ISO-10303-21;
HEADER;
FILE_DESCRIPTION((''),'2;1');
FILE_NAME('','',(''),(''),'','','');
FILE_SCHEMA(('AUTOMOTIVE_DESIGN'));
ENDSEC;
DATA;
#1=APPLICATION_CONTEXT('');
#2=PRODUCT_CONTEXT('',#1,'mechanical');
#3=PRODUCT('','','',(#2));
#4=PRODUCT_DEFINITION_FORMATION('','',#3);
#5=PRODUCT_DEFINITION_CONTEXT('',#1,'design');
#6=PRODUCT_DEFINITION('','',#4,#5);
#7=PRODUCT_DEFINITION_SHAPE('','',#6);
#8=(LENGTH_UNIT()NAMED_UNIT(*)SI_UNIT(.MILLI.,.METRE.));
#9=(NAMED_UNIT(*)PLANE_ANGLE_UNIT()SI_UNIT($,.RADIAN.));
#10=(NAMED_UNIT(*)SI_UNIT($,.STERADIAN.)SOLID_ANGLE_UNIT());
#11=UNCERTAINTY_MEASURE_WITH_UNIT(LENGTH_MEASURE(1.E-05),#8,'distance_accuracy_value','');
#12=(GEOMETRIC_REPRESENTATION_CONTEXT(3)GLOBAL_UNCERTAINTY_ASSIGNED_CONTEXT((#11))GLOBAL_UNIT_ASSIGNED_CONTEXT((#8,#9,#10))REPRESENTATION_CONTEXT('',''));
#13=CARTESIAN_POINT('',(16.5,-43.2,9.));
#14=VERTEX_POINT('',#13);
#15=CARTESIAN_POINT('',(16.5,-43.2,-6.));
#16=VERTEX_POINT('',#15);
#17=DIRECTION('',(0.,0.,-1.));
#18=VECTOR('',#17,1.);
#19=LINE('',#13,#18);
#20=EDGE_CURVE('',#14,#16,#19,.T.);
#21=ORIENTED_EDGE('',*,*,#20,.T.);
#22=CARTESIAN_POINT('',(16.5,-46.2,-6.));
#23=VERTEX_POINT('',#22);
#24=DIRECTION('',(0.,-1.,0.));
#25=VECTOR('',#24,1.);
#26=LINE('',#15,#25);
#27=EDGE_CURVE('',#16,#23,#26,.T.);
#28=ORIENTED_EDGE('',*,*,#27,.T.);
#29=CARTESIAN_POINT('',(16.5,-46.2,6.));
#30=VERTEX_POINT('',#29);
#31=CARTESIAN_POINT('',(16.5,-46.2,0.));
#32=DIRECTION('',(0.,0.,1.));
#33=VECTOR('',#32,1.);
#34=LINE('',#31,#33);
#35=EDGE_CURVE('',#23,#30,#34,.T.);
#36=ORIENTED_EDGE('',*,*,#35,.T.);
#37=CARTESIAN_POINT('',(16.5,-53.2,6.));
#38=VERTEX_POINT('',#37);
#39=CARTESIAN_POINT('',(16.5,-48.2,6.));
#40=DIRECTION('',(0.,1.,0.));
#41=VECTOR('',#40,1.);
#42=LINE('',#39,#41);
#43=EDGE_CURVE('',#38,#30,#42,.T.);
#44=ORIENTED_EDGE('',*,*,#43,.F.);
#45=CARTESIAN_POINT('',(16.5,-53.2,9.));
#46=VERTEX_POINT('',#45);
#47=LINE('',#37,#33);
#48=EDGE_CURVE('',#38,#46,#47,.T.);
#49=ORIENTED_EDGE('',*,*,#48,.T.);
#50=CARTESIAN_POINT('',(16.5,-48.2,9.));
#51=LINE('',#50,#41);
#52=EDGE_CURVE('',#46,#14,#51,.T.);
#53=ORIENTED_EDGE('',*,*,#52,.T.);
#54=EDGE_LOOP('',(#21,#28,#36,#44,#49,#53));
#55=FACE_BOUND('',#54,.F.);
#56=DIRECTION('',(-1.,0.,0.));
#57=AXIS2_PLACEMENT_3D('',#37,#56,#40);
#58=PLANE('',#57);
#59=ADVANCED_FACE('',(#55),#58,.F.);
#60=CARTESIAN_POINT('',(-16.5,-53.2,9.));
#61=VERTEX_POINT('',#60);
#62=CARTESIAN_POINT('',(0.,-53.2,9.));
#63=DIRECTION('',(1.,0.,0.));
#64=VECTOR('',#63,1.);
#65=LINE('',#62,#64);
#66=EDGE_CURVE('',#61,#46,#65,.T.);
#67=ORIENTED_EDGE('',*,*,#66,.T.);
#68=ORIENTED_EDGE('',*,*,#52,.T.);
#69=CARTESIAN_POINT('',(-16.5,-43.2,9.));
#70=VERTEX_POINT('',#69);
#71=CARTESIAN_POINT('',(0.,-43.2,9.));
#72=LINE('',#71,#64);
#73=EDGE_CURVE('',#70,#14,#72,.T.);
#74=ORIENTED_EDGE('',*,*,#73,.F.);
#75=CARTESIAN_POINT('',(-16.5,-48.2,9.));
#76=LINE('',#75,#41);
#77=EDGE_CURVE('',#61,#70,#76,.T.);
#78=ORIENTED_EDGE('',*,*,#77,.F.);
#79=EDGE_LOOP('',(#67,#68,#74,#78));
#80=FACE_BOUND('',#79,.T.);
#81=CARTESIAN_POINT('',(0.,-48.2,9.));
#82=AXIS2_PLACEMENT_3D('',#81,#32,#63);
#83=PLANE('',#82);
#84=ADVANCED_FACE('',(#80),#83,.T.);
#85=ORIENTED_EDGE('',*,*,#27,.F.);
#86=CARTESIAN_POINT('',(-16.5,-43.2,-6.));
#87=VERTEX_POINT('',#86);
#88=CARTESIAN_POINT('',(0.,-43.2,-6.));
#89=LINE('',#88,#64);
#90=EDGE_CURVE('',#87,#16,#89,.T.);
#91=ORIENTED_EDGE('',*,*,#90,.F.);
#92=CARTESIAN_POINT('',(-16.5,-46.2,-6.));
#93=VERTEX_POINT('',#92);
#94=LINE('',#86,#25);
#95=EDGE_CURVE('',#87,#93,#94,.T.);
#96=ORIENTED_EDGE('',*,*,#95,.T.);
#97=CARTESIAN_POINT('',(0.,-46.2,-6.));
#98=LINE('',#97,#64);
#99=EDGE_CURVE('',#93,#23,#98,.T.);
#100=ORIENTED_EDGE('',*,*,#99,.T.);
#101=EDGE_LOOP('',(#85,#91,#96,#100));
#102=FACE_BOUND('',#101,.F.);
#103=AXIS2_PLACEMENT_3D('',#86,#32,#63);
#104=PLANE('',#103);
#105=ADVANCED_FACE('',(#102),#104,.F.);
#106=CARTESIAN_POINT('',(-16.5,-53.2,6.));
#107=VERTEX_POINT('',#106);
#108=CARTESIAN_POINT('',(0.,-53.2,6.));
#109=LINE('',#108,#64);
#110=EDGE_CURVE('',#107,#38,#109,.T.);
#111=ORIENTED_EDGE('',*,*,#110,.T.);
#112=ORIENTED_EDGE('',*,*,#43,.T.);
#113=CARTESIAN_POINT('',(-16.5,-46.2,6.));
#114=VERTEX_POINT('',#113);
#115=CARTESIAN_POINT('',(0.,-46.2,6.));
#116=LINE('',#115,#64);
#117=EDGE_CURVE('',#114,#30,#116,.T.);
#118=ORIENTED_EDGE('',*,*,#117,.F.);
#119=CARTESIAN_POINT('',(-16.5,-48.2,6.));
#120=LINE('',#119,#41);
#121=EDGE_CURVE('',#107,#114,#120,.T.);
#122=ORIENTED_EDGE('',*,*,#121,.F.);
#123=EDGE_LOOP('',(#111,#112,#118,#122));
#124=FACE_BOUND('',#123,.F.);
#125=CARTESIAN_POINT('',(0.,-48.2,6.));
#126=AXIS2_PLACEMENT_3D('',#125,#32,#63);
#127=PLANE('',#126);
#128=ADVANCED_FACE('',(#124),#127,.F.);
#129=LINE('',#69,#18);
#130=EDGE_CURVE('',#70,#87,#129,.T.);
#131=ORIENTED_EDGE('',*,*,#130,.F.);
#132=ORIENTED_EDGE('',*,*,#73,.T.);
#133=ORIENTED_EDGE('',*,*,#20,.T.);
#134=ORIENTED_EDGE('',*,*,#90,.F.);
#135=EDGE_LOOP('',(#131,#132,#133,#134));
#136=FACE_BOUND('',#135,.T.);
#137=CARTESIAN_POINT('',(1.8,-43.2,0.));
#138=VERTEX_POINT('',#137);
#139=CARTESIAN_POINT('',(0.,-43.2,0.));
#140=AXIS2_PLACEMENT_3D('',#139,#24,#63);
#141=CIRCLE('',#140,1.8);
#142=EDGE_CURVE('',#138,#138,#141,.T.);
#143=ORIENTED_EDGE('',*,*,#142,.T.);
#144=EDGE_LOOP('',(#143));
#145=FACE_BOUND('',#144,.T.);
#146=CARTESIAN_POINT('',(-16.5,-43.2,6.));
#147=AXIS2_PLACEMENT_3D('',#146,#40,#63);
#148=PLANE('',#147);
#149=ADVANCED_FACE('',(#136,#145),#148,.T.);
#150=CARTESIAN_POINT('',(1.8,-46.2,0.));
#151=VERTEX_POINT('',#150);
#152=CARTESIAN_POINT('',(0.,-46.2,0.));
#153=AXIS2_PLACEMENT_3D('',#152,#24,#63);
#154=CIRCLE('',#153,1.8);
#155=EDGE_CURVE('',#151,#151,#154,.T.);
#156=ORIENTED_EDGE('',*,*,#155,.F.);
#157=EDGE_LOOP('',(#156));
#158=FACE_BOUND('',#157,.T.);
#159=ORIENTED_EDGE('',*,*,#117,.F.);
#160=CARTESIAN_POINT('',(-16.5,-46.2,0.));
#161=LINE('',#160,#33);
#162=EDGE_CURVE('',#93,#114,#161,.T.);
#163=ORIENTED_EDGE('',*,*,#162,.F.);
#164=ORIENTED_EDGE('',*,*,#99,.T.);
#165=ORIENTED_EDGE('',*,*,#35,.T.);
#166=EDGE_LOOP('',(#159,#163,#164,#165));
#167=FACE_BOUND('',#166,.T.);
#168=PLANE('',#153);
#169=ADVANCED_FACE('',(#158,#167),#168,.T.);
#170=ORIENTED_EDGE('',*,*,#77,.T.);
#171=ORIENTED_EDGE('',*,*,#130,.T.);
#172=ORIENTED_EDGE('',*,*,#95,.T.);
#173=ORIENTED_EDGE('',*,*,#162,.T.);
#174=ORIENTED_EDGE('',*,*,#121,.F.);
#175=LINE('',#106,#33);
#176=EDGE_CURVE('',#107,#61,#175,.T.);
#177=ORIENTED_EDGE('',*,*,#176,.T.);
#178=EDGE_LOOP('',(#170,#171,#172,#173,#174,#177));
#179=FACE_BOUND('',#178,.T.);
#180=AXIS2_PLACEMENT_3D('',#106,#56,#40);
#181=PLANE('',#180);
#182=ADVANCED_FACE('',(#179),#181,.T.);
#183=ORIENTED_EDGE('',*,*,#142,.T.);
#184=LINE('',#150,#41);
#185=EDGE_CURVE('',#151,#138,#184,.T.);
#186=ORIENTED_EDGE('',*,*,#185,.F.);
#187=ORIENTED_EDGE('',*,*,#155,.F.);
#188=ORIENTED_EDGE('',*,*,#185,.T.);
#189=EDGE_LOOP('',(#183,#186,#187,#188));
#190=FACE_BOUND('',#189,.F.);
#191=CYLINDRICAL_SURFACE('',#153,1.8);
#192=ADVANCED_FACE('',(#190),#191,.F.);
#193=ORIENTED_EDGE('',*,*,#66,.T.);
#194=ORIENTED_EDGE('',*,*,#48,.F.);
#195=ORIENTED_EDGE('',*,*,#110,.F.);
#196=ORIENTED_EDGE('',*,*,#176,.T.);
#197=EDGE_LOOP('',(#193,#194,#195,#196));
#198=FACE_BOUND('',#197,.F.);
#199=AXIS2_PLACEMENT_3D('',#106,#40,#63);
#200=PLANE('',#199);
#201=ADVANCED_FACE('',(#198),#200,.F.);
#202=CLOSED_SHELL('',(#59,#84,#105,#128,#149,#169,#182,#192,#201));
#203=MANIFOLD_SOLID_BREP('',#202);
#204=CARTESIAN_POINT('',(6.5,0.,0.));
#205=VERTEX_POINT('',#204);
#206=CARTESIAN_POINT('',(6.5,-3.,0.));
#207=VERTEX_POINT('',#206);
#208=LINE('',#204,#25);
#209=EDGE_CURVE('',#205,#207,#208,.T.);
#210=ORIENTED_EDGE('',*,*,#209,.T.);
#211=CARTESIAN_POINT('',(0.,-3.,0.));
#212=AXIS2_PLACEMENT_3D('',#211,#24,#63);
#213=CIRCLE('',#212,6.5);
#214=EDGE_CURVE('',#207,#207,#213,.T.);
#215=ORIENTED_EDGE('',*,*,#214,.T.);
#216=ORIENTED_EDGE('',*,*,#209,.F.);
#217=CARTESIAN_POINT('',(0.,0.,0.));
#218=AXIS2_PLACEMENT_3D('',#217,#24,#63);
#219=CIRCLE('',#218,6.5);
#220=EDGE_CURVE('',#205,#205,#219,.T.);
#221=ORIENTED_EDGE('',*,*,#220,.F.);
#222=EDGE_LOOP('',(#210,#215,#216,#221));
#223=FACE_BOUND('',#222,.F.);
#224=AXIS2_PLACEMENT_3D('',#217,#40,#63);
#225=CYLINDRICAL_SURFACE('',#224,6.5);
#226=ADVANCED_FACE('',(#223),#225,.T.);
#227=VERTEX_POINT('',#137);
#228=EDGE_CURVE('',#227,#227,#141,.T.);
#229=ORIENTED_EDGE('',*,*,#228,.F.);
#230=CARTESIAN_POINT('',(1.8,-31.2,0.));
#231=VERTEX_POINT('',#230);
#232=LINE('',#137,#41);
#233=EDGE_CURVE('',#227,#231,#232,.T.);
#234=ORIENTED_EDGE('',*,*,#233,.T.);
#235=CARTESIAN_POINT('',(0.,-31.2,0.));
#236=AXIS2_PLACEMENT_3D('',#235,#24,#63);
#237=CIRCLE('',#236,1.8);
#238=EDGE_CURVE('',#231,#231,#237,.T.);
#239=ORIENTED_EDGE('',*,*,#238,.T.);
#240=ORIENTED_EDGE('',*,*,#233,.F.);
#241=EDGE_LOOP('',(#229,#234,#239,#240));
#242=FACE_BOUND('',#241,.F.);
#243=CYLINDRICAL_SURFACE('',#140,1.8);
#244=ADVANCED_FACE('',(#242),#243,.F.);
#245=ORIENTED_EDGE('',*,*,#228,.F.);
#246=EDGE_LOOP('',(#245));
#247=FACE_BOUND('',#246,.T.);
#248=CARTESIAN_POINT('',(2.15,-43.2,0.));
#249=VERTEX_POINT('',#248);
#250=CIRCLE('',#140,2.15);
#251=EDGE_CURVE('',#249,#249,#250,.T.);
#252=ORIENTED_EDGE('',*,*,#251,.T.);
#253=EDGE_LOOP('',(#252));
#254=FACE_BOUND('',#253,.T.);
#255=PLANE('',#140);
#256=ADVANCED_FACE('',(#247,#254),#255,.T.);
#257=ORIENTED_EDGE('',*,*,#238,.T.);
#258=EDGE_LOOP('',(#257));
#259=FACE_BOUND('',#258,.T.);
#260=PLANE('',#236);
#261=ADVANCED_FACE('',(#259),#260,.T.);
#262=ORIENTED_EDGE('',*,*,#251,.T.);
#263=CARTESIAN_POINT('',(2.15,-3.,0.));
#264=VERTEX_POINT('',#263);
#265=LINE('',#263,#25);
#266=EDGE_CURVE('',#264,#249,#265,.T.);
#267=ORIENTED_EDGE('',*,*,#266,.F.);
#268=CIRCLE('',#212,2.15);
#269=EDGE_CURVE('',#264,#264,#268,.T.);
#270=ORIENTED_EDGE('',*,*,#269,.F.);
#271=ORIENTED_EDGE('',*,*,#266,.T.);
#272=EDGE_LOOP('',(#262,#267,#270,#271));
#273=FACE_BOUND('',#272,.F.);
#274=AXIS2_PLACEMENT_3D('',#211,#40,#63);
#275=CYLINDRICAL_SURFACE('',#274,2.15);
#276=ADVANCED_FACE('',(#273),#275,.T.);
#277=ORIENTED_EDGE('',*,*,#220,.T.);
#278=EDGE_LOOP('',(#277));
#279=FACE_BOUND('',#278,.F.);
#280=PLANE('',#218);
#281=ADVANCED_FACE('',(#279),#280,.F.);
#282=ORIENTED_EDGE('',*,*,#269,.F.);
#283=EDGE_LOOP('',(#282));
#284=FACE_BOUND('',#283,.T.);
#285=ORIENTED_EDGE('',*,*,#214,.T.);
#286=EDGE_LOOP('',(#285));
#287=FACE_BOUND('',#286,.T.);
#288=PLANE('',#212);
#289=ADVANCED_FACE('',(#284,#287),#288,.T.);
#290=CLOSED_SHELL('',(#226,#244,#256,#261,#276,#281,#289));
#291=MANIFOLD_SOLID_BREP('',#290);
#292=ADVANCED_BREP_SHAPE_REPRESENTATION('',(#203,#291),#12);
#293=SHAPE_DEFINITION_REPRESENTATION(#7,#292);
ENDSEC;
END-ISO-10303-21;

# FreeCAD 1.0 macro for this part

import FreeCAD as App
import Part
import Sketcher

V = App.Vector
Q = App.Units.Quantity

doc = App.newDocument("Part")
params = doc.addObject("Spreadsheet::Sheet", "Params")
for row, (alias, value) in enumerate([
    ("sketch1_diameter", "13 mm"),
    ("pad1_length", "3 mm"),
    ("sketch2_diameter", "4.3 mm"),
    ("pad2_length", "40.2 mm"),
    ("sketch3_diameter", "3.6 mm"),
    ("pocket1_length", "12 mm"),
    ("sketch4_width", "33 mm"),
    ("sketch4_height", "12 mm"),
    ("pad3_length", "3 mm"),
    ("sketch5_width", "33 mm"),
    ("sketch5_height", "10 mm"),
    ("pad4_length", "3 mm"),
    ("sketch6_diameter", "3.6 mm"),
], start=1):
    params.set(f"A{row}", alias)
    params.set(f"B{row}", "=" + value)
    params.setAlias(f"B{row}", alias)

body = doc.addObject("PartDesign::Body", "Body")

# Sketch on XZ plane
sketch1 = body.newObject("Sketcher::SketchObject", "Sketch")
sketch1.AttachmentSupport = (doc.getObject("XZ_Plane"), [""])
sketch1.MapMode = "FlatFace"
sketch1.addGeometry(Part.Circle(V(0, 0, 0), V(0, 0, 1), 6), False)
sketch1.addConstraint([
    Sketcher.Constraint("Coincident", 0, 3, -1, 1),
    Sketcher.Constraint("Diameter", 0, Q("13 mm")),
])
sketch1.setExpression("Constraints[1]", "Params.sketch1_diameter")
pad1 = body.newObject("PartDesign::Pad", "Pad")
pad1.Profile = sketch1
pad1.setExpression("Length", "Params.pad1_length")

# Sketch on XZ plane
sketch2 = body.newObject("Sketcher::SketchObject", "Sketch001")
sketch2.AttachmentSupport = (doc.getObject("XZ_Plane"), [""])
sketch2.MapMode = "FlatFace"
sketch2.AttachmentOffset = App.Placement(V(0, 0, 3), App.Rotation())
sketch2.addGeometry(Part.Circle(V(0, 0, 0), V(0, 0, 1), 2.1), False)
sketch2.addConstraint([
    Sketcher.Constraint("Coincident", 0, 3, -1, 1),
    Sketcher.Constraint("Diameter", 0, Q("4.3 mm")),
])
sketch2.setExpression("Constraints[1]", "Params.sketch2_diameter")
pad2 = body.newObject("PartDesign::Pad", "Pad001")
pad2.Profile = sketch2
pad2.setExpression("Length", "Params.pad2_length")

# Sketch on XZ plane
sketch3 = body.newObject("Sketcher::SketchObject", "Sketch002")
sketch3.AttachmentSupport = (doc.getObject("XZ_Plane"), [""])
sketch3.MapMode = "FlatFace"
sketch3.AttachmentOffset = App.Placement(V(0, 0, 43.2), App.Rotation())
sketch3.addGeometry(Part.Circle(V(0, 0, 0), V(0, 0, 1), 1.8), False)
sketch3.addConstraint([
    Sketcher.Constraint("Coincident", 0, 3, -1, 1),
    Sketcher.Constraint("Diameter", 0, Q("3.6 mm")),
])
sketch3.setExpression("Constraints[1]", "Params.sketch3_diameter")
pocket1 = body.newObject("PartDesign::Pocket", "Pocket")
pocket1.Profile = sketch3
pocket1.setExpression("Length", "Params.pocket1_length")
body2 = doc.addObject("PartDesign::Body", "Body001")

# Sketch on XZ plane
sketch4 = body2.newObject("Sketcher::SketchObject", "Sketch003")
sketch4.AttachmentSupport = (doc.getObject("XZ_Plane001"), [""])
sketch4.MapMode = "FlatFace"
sketch4.AttachmentOffset = App.Placement(V(0, 0, 43.2), App.Rotation())
sketch4.addGeometry([
    Part.LineSegment(V(-16, 6, 0), V(-16, -6, 0)),
    Part.LineSegment(V(-16, -6, 0), V(16, -6, 0)),
    Part.LineSegment(V(16, -6, 0), V(16, 6, 0)),
    Part.LineSegment(V(16, 6, 0), V(-16, 6, 0)),
], False)
sketch4.addConstraint([
    Sketcher.Constraint("Coincident", 0, 2, 1, 1),
    Sketcher.Constraint("Coincident", 1, 2, 2, 1),
    Sketcher.Constraint("Coincident", 2, 2, 3, 1),
    Sketcher.Constraint("Coincident", 3, 2, 0, 1),
    Sketcher.Constraint("Vertical", 0),
    Sketcher.Constraint("Horizontal", 1),
    Sketcher.Constraint("Vertical", 2),
    Sketcher.Constraint("Horizontal", 3),
    Sketcher.Constraint("Symmetric", 0, 2, 2, 2, -1, 1),
    Sketcher.Constraint("DistanceX", 1, 1, 1, 2, Q("33 mm")),
    Sketcher.Constraint("DistanceY", 0, 2, 0, 1, Q("12 mm")),
])
sketch4.setExpression("Constraints[9]", "Params.sketch4_width")
sketch4.setExpression("Constraints[10]", "Params.sketch4_height")
pad3 = body2.newObject("PartDesign::Pad", "Pad002")
pad3.Profile = sketch4
pad3.setExpression("Length", "Params.pad3_length")

# Sketch on XY plane
sketch5 = body2.newObject("Sketcher::SketchObject", "Sketch004")
sketch5.AttachmentSupport = (doc.getObject("XY_Plane001"), [""])
sketch5.MapMode = "FlatFace"
sketch5.AttachmentOffset = App.Placement(V(0, 0, 6), App.Rotation())
sketch5.addGeometry([
    Part.LineSegment(V(-16, -43, 0), V(-16, -53, 0)),
    Part.LineSegment(V(-16, -53, 0), V(16, -53, 0)),
    Part.LineSegment(V(16, -53, 0), V(16, -43, 0)),
    Part.LineSegment(V(16, -43, 0), V(-16, -43, 0)),
], False)
sketch5.addConstraint([
    Sketcher.Constraint("Coincident", 0, 2, 1, 1),
    Sketcher.Constraint("Coincident", 1, 2, 2, 1),
    Sketcher.Constraint("Coincident", 2, 2, 3, 1),
    Sketcher.Constraint("Coincident", 3, 2, 0, 1),
    Sketcher.Constraint("Vertical", 0),
    Sketcher.Constraint("Horizontal", 1),
    Sketcher.Constraint("Vertical", 2),
    Sketcher.Constraint("Horizontal", 3),
    Sketcher.Constraint("DistanceX", 1, 1, 1, 2, Q("33 mm")),
    Sketcher.Constraint("DistanceY", 0, 2, 0, 1, Q("10 mm")),
    Sketcher.Constraint("DistanceX", 0, 2, -1, 1, Q("16.5 mm")),
    Sketcher.Constraint("DistanceY", 0, 2, -1, 1, Q("53.2 mm")),
])
sketch5.setExpression("Constraints[8]", "Params.sketch5_width")
sketch5.setExpression("Constraints[9]", "Params.sketch5_height")
pad4 = body2.newObject("PartDesign::Pad", "Pad003")
pad4.Profile = sketch5
pad4.setExpression("Length", "Params.pad4_length")

# Sketch on XZ plane
sketch6 = body2.newObject("Sketcher::SketchObject", "Sketch005")
sketch6.AttachmentSupport = (doc.getObject("XZ_Plane001"), [""])
sketch6.MapMode = "FlatFace"
sketch6.AttachmentOffset = App.Placement(V(0, 0, 46.2), App.Rotation())
sketch6.addGeometry(Part.Circle(V(0, 0, 0), V(0, 0, 1), 1.8), False)
sketch6.addConstraint([
    Sketcher.Constraint("Coincident", 0, 3, -1, 1),
    Sketcher.Constraint("Diameter", 0, Q("3.6 mm")),
])
sketch6.setExpression("Constraints[1]", "Params.sketch6_diameter")
pocket2 = body2.newObject("PartDesign::Pocket", "Pocket001")
pocket2.Profile = sketch6
pocket2.Type = "ThroughAll"

doc.recompute()
